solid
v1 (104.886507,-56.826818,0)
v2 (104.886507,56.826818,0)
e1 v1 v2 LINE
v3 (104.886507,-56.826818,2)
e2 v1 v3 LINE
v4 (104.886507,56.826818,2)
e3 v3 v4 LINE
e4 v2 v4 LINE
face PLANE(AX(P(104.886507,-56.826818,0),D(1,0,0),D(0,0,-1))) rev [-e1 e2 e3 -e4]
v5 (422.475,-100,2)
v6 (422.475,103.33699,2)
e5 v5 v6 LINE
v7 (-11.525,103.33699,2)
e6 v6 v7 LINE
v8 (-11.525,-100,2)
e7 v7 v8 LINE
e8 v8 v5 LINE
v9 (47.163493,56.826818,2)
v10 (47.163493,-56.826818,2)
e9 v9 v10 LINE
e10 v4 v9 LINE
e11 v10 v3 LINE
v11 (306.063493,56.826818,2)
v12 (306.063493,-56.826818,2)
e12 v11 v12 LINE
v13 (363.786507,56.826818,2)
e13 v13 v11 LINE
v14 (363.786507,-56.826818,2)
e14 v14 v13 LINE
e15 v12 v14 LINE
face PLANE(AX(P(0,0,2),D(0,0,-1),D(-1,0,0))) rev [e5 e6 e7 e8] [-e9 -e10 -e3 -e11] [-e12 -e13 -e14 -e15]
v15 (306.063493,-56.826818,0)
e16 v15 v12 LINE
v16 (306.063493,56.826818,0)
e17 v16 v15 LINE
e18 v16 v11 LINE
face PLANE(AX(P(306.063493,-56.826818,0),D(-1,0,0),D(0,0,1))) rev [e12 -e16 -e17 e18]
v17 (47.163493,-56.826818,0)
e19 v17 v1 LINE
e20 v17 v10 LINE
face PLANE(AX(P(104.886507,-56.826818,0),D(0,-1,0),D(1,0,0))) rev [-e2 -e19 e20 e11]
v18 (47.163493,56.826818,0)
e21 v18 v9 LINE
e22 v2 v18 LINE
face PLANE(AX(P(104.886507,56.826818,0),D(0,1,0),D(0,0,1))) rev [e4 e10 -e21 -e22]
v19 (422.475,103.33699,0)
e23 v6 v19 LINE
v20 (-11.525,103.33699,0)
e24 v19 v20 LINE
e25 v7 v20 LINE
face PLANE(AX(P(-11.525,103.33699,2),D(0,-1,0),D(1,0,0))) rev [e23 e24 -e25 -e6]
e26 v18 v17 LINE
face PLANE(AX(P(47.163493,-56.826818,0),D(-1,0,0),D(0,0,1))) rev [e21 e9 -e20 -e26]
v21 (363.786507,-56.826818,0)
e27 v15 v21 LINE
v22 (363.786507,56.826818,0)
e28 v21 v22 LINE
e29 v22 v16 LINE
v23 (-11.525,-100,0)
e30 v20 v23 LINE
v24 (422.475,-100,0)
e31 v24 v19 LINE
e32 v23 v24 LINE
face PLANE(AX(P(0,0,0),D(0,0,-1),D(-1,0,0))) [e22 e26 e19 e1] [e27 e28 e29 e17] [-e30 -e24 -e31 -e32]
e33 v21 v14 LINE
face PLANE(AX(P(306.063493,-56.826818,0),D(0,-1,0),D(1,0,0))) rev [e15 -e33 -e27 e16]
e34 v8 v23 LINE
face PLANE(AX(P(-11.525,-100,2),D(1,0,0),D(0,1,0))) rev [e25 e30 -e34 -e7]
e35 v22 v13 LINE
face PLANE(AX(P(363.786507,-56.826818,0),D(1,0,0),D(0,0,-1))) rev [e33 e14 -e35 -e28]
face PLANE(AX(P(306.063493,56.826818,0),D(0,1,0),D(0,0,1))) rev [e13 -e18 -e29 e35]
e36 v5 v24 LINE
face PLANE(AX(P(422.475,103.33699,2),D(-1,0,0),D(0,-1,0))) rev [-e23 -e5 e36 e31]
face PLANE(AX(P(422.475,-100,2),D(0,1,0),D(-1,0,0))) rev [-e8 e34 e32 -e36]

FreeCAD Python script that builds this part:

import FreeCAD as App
import Part
import Sketcher

V = App.Vector
Q = App.Units.Quantity


def add_polygon(sketch, points):
    """Adds a closed chain of lines whose ends are joined by coincident constraints."""
    first, n = sketch.GeometryCount, len(points)
    for a, b in zip(points, points[1:] + points[:1]):
        sketch.addGeometry(Part.LineSegment(App.Vector(*a, 0), App.Vector(*b, 0)), False)
    for i in range(n):
        sketch.addConstraint(Sketcher.Constraint("Coincident", first + i, 2, first + (i + 1) % n, 1))

doc = App.newDocument("Part")
body = doc.addObject("PartDesign::Body", "Body")

sketch1 = body.newObject("Sketcher::SketchObject", "Sketch")
sketch1.AttachmentSupport = (doc.getObject("XY_Plane"), [""])
sketch1.MapMode = "FlatFace"
add_polygon(sketch1, [(-11.525, 103.33699), (-11.525, -100), (422.475, -100), (422.475, 103.33699)])
sketch1.addConstraint(Sketcher.Constraint("Vertical", 0))
sketch1.addConstraint(Sketcher.Constraint("Horizontal", 1))
sketch1.addConstraint(Sketcher.Constraint("Vertical", 2))
sketch1.addConstraint(Sketcher.Constraint("Horizontal", 3))
sketch1.addConstraint(Sketcher.Constraint("DistanceX", 1, 1, 1, 2, Q("434 mm")))
sketch1.addConstraint(Sketcher.Constraint("DistanceY", 0, 2, -1, 1, Q("100 mm")))
sketch1.addConstraint(Sketcher.Constraint("DistanceX", 0, 2, -1, 1, Q("11.525 mm")))
sketch1.addConstraint(Sketcher.Constraint("DistanceY", 0, 2, 0, 1, Q("203.33699 mm")))
pad1 = body.newObject("PartDesign::Pad", "Pad")
pad1.Profile = sketch1
pad1.Length = 2

sketch2 = body.newObject("Sketcher::SketchObject", "Sketch001")
sketch2.AttachmentSupport = (doc.getObject("XY_Plane"), [""])
sketch2.MapMode = "FlatFace"
sketch2.AttachmentOffset = App.Placement(V(0, 0, 2), App.Rotation())
add_polygon(sketch2, [(47.163493, 56.826818), (47.163493, -56.826818), (104.886507, -56.826818), (104.886507, 56.826818)])
add_polygon(sketch2, [(306.063493, 56.826818), (306.063493, -56.826818), (363.786507, -56.826818), (363.786507, 56.826818)])
sketch2.addConstraint(Sketcher.Constraint("Vertical", 0))
sketch2.addConstraint(Sketcher.Constraint("Horizontal", 1))
sketch2.addConstraint(Sketcher.Constraint("Vertical", 2))
sketch2.addConstraint(Sketcher.Constraint("Horizontal", 3))
sketch2.addConstraint(Sketcher.Constraint("Vertical", 4))
sketch2.addConstraint(Sketcher.Constraint("Horizontal", 5))
sketch2.addConstraint(Sketcher.Constraint("Vertical", 6))
sketch2.addConstraint(Sketcher.Constraint("Horizontal", 7))
sketch2.addConstraint(Sketcher.Constraint("Horizontal", 1, 2, 4, 2))
sketch2.addConstraint(Sketcher.Constraint("Horizontal", 3, 2, 6, 2))
sketch2.addConstraint(Sketcher.Constraint("Equal", 3, 5))
sketch2.addConstraint(Sketcher.Constraint("DistanceX", 0, 2, 4, 2, Q("258.9 mm")))
sketch2.addConstraint(Sketcher.Constraint("DistanceX", 1, 1, 1, 2, Q("57.723013 mm")))
sketch2.addConstraint(Sketcher.Constraint("DistanceY", 0, 2, 0, 1, Q("113.653635 mm")))
sketch2.addConstraint(Sketcher.Constraint("DistanceX", -1, 1, 0, 2, Q("47.163493 mm")))
sketch2.addConstraint(Sketcher.Constraint("DistanceY", 0, 2, -1, 1, Q("56.826818 mm")))
pocket1 = body.newObject("PartDesign::Pocket", "Pocket")
pocket1.Profile = sketch2
pocket1.Type = "ThroughAll"

doc.recompute()
